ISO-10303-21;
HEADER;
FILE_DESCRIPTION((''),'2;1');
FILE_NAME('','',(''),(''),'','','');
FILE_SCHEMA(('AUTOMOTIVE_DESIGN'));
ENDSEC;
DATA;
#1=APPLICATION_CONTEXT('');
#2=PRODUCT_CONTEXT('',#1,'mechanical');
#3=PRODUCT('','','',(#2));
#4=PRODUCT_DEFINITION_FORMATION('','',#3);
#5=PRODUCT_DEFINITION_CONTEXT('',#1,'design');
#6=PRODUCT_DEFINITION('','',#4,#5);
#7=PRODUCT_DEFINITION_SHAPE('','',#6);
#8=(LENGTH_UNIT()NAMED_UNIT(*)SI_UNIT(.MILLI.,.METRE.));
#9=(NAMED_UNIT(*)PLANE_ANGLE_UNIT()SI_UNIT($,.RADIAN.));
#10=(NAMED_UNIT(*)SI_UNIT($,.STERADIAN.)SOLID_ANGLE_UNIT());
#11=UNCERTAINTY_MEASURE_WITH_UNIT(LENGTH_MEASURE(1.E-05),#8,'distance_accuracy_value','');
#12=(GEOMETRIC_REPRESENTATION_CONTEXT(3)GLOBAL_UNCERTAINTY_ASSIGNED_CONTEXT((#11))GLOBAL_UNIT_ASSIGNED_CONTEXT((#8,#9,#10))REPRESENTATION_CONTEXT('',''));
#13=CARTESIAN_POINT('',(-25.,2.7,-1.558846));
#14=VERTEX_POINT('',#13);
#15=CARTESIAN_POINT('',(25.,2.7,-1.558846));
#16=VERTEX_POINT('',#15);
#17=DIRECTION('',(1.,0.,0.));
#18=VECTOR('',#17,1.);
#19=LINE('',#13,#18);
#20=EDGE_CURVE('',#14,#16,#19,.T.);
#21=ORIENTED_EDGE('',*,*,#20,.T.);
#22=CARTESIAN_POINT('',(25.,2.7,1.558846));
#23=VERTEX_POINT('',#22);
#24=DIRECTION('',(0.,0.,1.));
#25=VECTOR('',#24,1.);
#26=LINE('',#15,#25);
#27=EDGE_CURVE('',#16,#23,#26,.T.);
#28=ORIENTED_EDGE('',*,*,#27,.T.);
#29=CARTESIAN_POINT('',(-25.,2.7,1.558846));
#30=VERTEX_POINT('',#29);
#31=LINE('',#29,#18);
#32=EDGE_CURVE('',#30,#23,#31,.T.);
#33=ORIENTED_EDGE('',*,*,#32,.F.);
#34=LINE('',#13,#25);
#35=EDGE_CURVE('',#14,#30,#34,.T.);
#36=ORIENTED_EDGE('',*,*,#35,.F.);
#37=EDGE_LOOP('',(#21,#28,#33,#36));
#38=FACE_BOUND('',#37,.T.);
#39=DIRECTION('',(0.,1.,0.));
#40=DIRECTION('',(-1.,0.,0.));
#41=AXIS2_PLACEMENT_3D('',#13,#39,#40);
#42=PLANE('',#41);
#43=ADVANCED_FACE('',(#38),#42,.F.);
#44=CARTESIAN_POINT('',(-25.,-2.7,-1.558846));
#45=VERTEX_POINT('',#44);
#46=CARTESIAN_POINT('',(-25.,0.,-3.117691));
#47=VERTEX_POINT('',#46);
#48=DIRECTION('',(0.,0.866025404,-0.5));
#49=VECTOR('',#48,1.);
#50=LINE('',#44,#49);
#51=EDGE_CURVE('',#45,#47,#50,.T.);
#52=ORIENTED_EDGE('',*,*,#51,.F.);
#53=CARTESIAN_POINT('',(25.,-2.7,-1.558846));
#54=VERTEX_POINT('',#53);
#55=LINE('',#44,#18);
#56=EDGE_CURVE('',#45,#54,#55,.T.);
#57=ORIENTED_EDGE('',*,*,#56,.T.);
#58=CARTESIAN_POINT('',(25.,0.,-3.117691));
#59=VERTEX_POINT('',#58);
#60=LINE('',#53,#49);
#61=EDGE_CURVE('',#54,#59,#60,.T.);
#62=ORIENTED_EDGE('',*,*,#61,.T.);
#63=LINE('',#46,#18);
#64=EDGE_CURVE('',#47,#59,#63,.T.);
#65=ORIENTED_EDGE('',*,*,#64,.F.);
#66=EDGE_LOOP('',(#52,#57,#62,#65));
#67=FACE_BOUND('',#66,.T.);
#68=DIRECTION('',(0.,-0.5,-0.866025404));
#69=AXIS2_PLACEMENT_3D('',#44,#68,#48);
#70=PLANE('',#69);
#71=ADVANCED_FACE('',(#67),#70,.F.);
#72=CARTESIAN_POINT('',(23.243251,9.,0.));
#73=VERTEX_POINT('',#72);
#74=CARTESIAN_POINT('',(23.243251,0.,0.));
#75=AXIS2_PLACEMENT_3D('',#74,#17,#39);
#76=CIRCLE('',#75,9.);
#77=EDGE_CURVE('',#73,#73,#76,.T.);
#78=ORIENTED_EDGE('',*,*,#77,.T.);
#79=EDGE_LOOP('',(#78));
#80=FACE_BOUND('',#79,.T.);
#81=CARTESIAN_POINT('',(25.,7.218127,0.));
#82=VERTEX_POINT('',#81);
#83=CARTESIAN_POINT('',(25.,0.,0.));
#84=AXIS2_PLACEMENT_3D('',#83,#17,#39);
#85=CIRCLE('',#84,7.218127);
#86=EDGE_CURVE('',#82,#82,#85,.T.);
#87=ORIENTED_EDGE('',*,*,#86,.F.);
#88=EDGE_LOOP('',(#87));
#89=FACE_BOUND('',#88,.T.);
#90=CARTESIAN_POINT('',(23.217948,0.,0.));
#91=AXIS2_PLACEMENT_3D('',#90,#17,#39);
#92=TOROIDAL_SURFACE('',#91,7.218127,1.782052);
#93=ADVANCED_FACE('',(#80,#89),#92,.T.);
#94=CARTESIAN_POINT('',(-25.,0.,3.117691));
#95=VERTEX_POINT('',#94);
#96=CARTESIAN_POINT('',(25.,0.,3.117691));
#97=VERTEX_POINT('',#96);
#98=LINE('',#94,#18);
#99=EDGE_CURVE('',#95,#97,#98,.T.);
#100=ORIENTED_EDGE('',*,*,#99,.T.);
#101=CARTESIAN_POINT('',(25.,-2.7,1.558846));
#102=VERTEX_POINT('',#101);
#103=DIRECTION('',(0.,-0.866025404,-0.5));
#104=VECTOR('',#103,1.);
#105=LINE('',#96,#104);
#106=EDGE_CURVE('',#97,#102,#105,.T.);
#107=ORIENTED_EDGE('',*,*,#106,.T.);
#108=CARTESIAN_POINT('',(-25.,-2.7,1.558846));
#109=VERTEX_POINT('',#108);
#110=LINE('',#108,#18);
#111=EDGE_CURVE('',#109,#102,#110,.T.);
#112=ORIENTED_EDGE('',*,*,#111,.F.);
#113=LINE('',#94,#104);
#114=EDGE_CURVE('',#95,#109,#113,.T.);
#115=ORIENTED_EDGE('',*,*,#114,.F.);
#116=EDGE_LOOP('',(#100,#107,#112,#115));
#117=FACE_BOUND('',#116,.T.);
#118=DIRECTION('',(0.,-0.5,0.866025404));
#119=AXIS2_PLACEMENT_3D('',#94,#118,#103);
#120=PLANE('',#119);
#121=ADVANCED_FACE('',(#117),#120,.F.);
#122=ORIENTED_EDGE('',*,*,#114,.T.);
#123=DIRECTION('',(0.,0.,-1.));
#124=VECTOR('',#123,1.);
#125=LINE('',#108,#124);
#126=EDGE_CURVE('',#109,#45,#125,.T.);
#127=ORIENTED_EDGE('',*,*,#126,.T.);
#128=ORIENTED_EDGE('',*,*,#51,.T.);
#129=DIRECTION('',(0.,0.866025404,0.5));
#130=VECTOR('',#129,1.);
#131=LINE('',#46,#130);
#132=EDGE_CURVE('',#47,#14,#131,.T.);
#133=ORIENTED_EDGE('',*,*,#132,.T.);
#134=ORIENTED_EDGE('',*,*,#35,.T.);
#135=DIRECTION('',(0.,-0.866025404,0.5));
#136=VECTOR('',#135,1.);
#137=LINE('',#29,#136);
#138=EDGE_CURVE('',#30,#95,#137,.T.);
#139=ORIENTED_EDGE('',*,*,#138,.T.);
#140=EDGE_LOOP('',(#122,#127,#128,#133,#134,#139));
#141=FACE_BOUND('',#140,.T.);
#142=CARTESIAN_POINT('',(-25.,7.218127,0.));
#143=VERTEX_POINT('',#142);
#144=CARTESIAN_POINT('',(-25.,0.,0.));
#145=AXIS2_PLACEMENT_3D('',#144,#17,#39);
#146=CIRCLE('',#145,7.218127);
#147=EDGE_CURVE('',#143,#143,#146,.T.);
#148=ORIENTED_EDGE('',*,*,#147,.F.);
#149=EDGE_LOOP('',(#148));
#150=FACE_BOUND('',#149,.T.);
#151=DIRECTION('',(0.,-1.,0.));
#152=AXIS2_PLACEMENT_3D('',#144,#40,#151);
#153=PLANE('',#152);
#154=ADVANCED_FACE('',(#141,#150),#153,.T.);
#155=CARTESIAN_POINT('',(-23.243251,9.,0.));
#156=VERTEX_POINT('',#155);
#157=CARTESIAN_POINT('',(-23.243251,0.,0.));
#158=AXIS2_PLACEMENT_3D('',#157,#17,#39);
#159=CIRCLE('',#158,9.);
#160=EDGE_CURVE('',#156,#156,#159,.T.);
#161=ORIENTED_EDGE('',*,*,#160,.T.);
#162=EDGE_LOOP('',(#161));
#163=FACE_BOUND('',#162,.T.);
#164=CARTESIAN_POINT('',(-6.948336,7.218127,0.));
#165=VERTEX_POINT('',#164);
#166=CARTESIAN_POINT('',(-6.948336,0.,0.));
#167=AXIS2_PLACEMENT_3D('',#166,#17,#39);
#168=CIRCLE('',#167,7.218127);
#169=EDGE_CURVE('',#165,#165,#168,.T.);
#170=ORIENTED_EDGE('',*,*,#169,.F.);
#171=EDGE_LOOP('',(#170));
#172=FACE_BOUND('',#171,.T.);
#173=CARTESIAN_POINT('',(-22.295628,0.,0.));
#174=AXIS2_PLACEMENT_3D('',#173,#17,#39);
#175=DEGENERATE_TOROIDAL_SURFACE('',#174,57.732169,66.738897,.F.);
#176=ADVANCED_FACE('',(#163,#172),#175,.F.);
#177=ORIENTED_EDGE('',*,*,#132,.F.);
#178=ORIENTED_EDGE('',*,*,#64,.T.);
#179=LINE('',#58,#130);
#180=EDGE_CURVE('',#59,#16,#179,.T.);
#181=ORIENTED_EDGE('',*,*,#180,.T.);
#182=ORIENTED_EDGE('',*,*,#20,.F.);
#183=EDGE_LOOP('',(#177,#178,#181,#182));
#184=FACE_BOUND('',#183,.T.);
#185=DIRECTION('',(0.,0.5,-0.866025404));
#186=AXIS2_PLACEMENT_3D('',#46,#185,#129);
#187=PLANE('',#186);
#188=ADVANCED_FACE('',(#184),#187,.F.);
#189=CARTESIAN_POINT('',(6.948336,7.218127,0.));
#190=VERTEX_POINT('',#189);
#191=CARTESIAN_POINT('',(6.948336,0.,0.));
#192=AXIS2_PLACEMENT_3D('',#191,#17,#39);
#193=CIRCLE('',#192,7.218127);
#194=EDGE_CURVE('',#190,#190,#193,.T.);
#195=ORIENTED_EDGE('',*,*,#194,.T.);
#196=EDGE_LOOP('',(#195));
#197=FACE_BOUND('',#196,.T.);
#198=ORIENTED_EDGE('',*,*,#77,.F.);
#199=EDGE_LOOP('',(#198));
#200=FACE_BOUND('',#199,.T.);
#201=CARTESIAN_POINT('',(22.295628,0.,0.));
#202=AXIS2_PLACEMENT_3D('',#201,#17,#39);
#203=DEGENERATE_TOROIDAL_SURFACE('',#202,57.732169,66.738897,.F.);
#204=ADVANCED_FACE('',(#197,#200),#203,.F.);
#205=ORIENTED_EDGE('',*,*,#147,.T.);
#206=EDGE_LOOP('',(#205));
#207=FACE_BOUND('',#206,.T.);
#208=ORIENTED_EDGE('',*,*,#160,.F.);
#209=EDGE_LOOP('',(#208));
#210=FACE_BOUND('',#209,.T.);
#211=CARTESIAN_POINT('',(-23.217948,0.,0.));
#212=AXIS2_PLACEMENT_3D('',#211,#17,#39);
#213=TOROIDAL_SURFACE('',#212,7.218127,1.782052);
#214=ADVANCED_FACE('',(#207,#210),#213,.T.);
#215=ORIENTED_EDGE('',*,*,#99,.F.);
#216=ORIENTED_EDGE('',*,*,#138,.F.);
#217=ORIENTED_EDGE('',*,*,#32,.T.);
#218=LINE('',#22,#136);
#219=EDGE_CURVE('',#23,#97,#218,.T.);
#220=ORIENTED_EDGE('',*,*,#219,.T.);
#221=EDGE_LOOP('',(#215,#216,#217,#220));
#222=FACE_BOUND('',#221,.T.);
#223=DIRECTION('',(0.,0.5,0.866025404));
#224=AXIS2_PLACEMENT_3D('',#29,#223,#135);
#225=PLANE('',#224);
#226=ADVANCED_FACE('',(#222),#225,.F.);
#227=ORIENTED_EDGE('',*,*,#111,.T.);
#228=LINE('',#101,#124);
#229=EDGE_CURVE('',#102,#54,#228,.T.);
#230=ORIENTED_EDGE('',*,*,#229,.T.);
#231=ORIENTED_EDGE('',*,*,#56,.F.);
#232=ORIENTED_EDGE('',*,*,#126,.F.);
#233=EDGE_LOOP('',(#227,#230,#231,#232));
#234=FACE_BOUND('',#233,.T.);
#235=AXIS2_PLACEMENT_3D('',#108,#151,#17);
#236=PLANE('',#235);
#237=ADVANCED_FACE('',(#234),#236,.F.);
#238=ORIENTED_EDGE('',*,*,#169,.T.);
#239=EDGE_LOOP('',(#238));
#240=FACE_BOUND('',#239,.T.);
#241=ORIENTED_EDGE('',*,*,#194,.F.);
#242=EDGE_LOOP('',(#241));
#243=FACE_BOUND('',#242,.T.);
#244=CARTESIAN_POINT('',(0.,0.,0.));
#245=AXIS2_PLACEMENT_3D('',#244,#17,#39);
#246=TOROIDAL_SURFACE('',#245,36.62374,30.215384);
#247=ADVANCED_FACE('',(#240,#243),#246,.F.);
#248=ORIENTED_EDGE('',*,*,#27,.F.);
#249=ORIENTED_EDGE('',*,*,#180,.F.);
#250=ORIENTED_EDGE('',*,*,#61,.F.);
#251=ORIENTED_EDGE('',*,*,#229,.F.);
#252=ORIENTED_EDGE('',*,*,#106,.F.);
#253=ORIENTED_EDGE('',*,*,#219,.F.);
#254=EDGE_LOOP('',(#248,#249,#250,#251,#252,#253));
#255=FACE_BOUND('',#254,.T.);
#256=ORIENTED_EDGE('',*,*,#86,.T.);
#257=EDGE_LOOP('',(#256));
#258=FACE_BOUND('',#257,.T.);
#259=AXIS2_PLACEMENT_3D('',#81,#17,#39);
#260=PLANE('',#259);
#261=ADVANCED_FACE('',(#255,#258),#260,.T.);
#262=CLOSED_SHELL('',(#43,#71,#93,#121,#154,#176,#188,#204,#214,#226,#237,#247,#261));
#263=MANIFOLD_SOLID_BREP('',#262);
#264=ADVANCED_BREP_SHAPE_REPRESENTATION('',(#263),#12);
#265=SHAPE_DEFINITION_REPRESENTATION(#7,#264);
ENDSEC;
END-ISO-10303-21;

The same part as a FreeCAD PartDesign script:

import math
import FreeCAD as App
import Part
import Sketcher
from FreeCAD import Vector
Q = App.Units.Quantity

doc = App.newDocument("Part")
body = doc.addObject("PartDesign::Body", "Body")

# Sketch on XY plane
sketch1 = body.newObject("Sketcher::SketchObject", "Sketch")
sketch1.AttachmentSupport = (doc.getObject("XY_Plane"), [""])
sketch1.MapMode = "FlatFace"
sketch1.addGeometry([
    Part.LineSegment(Vector(-25, 7.218127, 0), Vector(-25, 0, 0)),  # 0
    Part.LineSegment(Vector(-25, 0, 0), Vector(25, 0, 0)),  # 1
    Part.LineSegment(Vector(25, 0, 0), Vector(25, 7.218127, 0)),  # 2
    Part.ArcOfCircle(Part.Circle(Vector(23.217948, 7.218127, 0), Vector(0, 0, 1), 1.782052), math.radians(0), math.radians(89.186432)),  # 3
    Part.ArcOfCircle(Part.Circle(Vector(22.295628, -57.732169, 0), Vector(0, 0, 1), 66.738897), math.radians(89.186432), math.radians(103.29473)),  # 4
    Part.ArcOfCircle(Part.Circle(Vector(0, 36.62374, 0), Vector(0, 0, 1), 30.215384), math.radians(-103.29473), math.radians(-76.70527)),  # 5
    Part.ArcOfCircle(Part.Circle(Vector(-22.295628, -57.732169, 0), Vector(0, 0, 1), 66.738897), math.radians(76.70527), math.radians(90.813568)),  # 6
    Part.ArcOfCircle(Part.Circle(Vector(-23.217948, 7.218127, 0), Vector(0, 0, 1), 1.782052), math.radians(90.813568), math.radians(180)),  # 7
], False)
sketch1.addConstraint([
    Sketcher.Constraint("Coincident", 0, 2, 1, 1),
    Sketcher.Constraint("Coincident", 1, 2, 2, 1),
    Sketcher.Constraint("Tangent", 2, 2, 3, 1),
    Sketcher.Constraint("Tangent", 3, 2, 4, 1),
    Sketcher.Constraint("Tangent", 4, 2, 5, 2),
    Sketcher.Constraint("Tangent", 5, 1, 6, 1),
    Sketcher.Constraint("Tangent", 6, 2, 7, 1),
    Sketcher.Constraint("Tangent", 7, 2, 0, 1),
    Sketcher.Constraint("Vertical", 0),
    Sketcher.Constraint("Horizontal", 1),
    Sketcher.Constraint("Vertical", 2),
    Sketcher.Constraint("Equal", 4, 6),
    Sketcher.Constraint("Equal", 3, 7),
    Sketcher.Constraint("Symmetric", 0, 2, 1, 2, -1, 1),
    Sketcher.Constraint("Symmetric", 4, 3, 6, 3, -2),
    Sketcher.Constraint("Horizontal", 2, 2, 4, 2),
    Sketcher.Constraint("DistanceX", 1, 1, 1, 2, 50.0),
    Sketcher.Constraint("DistanceY", -1, 1, 3, 2, 9.0),
    Sketcher.Constraint("Radius", 3, 1.782052),
    Sketcher.Constraint("Radius", 4, 66.738897),
    Sketcher.Constraint("Radius", 5, 30.215384),
])
revolution = body.newObject("PartDesign::Revolution", "Revolution")
revolution.Profile = sketch1
revolution.ReferenceAxis = (sketch1, ["H_Axis"])
revolution.Angle = 360

# Sketch on YZ plane
sketch2 = body.newObject("Sketcher::SketchObject", "Sketch001")
sketch2.AttachmentSupport = (doc.getObject("YZ_Plane"), [""])
sketch2.MapMode = "FlatFace"
sketch2.AttachmentOffset = App.Placement(Vector(0, 0, 25), App.Rotation())
sketch2.addGeometry([
    Part.LineSegment(Vector(0, -3.117691, 0), Vector(2.7, -1.558846, 0)),  # 0
    Part.LineSegment(Vector(2.7, -1.558846, 0), Vector(2.7, 1.558846, 0)),  # 1
    Part.LineSegment(Vector(2.7, 1.558846, 0), Vector(0, 3.117691, 0)),  # 2
    Part.LineSegment(Vector(0, 3.117691, 0), Vector(-2.7, 1.558846, 0)),  # 3
    Part.LineSegment(Vector(-2.7, 1.558846, 0), Vector(-2.7, -1.558846, 0)),  # 4
    Part.LineSegment(Vector(-2.7, -1.558846, 0), Vector(0, -3.117691, 0)),  # 5
], False)
sketch2.addConstraint([
    Sketcher.Constraint("Coincident", 0, 2, 1, 1),
    Sketcher.Constraint("Coincident", 1, 2, 2, 1),
    Sketcher.Constraint("Coincident", 2, 2, 3, 1),
    Sketcher.Constraint("Coincident", 3, 2, 4, 1),
    Sketcher.Constraint("Coincident", 4, 2, 5, 1),
    Sketcher.Constraint("Coincident", 5, 2, 0, 1),
    Sketcher.Constraint("Vertical", 1),
    Sketcher.Constraint("Vertical", 4),
    Sketcher.Constraint("Symmetric", 0, 2, 3, 2, -1, 1),
    Sketcher.Constraint("Symmetric", 2, 2, 5, 2, -1, 1),
    Sketcher.Constraint("PointOnObject", 2, 2, -2),
    Sketcher.Constraint("Parallel", 2, 5),
    Sketcher.Constraint("Horizontal", 1, 2, 3, 2),
    Sketcher.Constraint("Angle", 0, Q("30 deg")),
    Sketcher.Constraint("DistanceX", -1, 1, 0, 2, 2.7),
    Sketcher.Constraint("DistanceY", 1, 1, 1, 2, 3.117691),
])
pocket1 = body.newObject("PartDesign::Pocket", "Pocket")
pocket1.Profile = sketch2
pocket1.Type = "ThroughAll"

doc.recompute()
